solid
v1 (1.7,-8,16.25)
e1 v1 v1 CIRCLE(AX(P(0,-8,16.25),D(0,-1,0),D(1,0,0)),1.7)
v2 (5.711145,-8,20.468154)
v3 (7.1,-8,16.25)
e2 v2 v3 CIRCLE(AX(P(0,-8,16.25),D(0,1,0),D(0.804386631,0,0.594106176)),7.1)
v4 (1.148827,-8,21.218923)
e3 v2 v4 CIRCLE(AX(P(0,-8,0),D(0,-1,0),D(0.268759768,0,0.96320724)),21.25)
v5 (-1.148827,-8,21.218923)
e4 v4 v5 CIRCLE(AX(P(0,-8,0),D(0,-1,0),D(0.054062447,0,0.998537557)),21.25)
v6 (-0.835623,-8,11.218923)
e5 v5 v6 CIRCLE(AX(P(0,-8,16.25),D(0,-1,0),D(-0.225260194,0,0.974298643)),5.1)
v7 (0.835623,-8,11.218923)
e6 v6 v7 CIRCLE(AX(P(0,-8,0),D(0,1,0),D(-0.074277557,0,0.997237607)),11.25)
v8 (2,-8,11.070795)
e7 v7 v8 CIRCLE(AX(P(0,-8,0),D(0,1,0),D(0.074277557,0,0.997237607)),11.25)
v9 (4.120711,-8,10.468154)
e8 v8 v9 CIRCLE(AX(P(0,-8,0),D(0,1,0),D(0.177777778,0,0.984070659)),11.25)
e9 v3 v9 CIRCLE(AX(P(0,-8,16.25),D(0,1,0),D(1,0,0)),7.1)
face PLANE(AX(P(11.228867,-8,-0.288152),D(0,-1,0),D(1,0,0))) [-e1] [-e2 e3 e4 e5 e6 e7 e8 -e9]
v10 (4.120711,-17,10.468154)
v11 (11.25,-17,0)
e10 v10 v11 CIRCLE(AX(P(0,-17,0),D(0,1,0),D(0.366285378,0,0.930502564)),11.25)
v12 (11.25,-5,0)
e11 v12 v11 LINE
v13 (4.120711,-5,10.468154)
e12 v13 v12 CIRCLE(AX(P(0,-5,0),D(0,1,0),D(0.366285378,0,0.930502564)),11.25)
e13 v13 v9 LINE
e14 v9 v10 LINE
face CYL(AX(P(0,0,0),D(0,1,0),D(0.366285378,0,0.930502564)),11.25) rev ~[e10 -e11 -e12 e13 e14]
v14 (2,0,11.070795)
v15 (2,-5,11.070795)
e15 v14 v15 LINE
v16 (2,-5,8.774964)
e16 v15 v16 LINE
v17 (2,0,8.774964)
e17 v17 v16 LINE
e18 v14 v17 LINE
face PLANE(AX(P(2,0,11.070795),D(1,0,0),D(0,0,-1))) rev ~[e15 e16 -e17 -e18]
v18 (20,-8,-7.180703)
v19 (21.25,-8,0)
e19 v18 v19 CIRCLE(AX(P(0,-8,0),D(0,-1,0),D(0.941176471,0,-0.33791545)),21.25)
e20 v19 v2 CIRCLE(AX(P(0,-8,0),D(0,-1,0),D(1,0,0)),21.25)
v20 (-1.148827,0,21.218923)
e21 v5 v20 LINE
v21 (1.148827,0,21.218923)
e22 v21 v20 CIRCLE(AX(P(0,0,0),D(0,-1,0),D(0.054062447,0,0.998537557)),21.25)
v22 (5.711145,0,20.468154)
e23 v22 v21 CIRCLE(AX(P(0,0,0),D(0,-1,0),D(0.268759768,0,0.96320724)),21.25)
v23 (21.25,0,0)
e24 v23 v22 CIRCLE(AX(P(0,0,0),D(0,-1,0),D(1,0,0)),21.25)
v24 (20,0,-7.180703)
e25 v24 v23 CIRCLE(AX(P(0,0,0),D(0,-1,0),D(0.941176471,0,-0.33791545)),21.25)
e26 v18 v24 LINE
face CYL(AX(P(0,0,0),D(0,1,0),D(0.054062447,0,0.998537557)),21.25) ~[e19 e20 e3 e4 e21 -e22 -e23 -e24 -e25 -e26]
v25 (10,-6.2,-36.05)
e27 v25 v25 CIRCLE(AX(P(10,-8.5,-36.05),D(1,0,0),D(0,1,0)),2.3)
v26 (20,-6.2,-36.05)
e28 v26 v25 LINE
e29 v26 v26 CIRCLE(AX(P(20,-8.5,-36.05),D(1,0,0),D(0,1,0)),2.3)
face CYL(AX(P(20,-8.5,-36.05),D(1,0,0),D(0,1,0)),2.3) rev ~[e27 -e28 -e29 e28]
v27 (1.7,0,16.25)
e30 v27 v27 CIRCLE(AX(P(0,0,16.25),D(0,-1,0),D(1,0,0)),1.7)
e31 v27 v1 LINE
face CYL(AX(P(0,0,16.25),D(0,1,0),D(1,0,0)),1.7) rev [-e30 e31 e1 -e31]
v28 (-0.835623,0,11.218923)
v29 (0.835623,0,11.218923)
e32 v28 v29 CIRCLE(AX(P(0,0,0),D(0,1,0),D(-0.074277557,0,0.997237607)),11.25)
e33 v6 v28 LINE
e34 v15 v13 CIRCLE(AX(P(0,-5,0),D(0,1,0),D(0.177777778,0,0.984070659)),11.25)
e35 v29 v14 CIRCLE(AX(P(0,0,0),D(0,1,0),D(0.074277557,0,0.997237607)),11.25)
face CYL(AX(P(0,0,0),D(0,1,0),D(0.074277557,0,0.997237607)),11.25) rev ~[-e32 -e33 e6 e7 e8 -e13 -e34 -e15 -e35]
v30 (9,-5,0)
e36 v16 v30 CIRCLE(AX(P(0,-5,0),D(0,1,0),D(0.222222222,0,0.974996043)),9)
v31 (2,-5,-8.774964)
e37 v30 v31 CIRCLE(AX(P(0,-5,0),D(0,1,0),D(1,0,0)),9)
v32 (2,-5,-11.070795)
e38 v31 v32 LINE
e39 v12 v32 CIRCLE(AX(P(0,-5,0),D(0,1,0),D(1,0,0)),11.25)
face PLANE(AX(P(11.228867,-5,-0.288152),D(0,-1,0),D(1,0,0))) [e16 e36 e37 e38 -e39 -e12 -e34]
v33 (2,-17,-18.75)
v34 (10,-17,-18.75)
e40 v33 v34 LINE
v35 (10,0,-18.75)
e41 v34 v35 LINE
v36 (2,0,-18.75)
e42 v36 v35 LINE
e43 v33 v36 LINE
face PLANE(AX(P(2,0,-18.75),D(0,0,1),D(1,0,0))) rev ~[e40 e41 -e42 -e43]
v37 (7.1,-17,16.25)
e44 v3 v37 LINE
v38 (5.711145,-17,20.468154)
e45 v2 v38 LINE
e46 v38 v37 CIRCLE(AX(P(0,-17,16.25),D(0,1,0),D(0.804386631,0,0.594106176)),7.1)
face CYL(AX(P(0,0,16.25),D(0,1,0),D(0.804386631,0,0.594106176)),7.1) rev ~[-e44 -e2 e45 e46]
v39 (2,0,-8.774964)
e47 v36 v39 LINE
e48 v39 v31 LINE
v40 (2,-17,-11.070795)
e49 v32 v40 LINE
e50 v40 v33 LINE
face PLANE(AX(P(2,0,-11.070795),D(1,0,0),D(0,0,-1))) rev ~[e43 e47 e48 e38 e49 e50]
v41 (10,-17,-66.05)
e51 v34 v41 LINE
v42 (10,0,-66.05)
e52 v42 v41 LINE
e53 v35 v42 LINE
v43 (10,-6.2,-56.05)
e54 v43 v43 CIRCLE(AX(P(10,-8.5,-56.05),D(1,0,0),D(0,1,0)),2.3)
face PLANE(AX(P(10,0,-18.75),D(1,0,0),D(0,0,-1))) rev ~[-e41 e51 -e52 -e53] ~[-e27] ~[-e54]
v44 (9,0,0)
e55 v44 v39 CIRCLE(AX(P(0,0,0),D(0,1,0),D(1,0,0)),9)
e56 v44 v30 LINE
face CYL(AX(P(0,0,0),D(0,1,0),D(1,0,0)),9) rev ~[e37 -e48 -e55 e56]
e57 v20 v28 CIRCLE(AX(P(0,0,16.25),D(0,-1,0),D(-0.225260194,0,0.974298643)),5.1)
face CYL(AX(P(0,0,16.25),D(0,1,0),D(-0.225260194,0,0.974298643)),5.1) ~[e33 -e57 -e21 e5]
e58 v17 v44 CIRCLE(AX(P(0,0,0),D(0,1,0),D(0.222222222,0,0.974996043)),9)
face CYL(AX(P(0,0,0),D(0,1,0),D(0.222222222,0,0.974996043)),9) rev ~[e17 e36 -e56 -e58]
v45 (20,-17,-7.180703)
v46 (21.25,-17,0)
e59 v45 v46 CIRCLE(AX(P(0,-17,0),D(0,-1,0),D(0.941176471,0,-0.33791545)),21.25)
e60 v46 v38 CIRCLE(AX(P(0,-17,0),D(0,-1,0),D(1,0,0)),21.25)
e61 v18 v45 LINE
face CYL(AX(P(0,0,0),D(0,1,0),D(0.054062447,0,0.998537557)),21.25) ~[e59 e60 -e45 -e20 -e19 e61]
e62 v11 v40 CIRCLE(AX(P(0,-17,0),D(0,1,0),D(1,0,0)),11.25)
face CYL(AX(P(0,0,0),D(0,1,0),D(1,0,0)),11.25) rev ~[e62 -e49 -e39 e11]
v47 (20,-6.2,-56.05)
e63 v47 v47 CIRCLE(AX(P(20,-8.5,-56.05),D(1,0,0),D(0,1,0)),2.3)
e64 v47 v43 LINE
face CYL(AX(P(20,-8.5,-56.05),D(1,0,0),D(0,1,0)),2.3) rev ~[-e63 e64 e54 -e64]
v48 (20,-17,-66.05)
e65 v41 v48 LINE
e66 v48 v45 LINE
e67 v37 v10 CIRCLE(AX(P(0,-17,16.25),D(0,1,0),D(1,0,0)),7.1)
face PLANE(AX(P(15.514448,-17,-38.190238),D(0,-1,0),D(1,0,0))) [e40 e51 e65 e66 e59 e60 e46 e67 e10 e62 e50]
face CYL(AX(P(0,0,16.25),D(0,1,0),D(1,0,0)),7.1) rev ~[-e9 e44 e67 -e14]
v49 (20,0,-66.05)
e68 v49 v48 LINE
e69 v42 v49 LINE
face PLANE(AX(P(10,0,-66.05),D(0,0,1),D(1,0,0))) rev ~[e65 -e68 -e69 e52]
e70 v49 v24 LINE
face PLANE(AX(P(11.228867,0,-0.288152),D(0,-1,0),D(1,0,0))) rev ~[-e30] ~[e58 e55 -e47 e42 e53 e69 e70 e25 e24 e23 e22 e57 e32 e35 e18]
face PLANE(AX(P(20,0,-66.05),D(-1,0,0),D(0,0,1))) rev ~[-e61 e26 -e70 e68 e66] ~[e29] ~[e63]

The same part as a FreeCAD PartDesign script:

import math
import FreeCAD as App
import Part
import Sketcher
from FreeCAD import Vector

doc = App.newDocument("Part")
body = doc.addObject("PartDesign::Body", "Body")

sketch1 = body.newObject("Sketcher::SketchObject", "Sketch")
sketch1.AttachmentSupport = (doc.getObject("XZ_Plane"), [""])
sketch1.MapMode = "FlatFace"
sketch1.addGeometry([
    Part.ArcOfCircle(Part.Circle(Vector(0, 0, 0), Vector(0, 0, 1), 9), math.radians(0), math.radians(77)),
    Part.ArcOfCircle(Part.Circle(Vector(0, 0, 0), Vector(0, 0, 1), 9), math.radians(-77), math.radians(0)),
    Part.LineSegment(Vector(2, -8.8, 0), Vector(2, -18.8, 0)),
    Part.LineSegment(Vector(2, -18.8, 0), Vector(10, -18.8, 0)),
    Part.LineSegment(Vector(10, -18.8, 0), Vector(10, -66, 0)),
    Part.LineSegment(Vector(10, -66, 0), Vector(20, -66, 0)),
    Part.LineSegment(Vector(20, -66, 0), Vector(20, -7.2, 0)),
    Part.ArcOfCircle(Part.Circle(Vector(0, 0, 0), Vector(0, 0, 1), 21.2), math.radians(-19.75), math.radians(0)),
    Part.ArcOfCircle(Part.Circle(Vector(0, 0, 0), Vector(0, 0, 1), 21.2), math.radians(0), math.radians(74)),
    Part.ArcOfCircle(Part.Circle(Vector(0, 0, 0), Vector(0, 0, 1), 21.3), math.radians(74.41), math.radians(86.9)),
    Part.ArcOfCircle(Part.Circle(Vector(0, 0, 0), Vector(0, 0, 1), 21.2), math.radians(86.9), math.radians(93.1)),
    Part.ArcOfCircle(Part.Circle(Vector(0, 16.2, 0), Vector(0, 0, 1), 5.1), math.radians(103), math.radians(261)),
    Part.ArcOfCircle(Part.Circle(Vector(0, 0, 0), Vector(0, 0, 1), 11.2), math.radians(85.74), math.radians(94.26)),
    Part.ArcOfCircle(Part.Circle(Vector(0, 0, 0), Vector(0, 0, 1), 11.2), math.radians(79.76), math.radians(85.74)),
    Part.LineSegment(Vector(2, 11.1, 0), Vector(2, 8.8, 0)),
    Part.Circle(Vector(0, 16.2, 0), Vector(0, 0, 1), 1.7),
], False)
sketch1.addConstraint([
    Sketcher.Constraint("Tangent", 0, 1, 1, 2),
    Sketcher.Constraint("Coincident", 1, 1, 2, 1),
    Sketcher.Constraint("Coincident", 2, 2, 3, 1),
    Sketcher.Constraint("Coincident", 3, 2, 4, 1),
    Sketcher.Constraint("Coincident", 4, 2, 5, 1),
    Sketcher.Constraint("Coincident", 5, 2, 6, 1),
    Sketcher.Constraint("Coincident", 6, 2, 7, 1),
    Sketcher.Constraint("Tangent", 7, 2, 8, 1),
    Sketcher.Constraint("Tangent", 8, 2, 9, 1),
    Sketcher.Constraint("Tangent", 9, 2, 10, 1),
    Sketcher.Constraint("Coincident", 10, 2, 11, 1),
    Sketcher.Constraint("Coincident", 11, 2, 12, 2),
    Sketcher.Constraint("Tangent", 12, 1, 13, 2),
    Sketcher.Constraint("Coincident", 13, 1, 14, 1),
    Sketcher.Constraint("Coincident", 14, 2, 0, 2),
    Sketcher.Constraint("Vertical", 2),
    Sketcher.Constraint("Horizontal", 3),
    Sketcher.Constraint("Vertical", 4),
    Sketcher.Constraint("Horizontal", 5),
    Sketcher.Constraint("Vertical", 6),
    Sketcher.Constraint("Vertical", 14),
    Sketcher.Constraint("Coincident", 0, 3, -1, 1),
    Sketcher.Constraint("Coincident", 7, 3, -1, 1),
    Sketcher.Constraint("Coincident", 9, 3, -1, 1),
    Sketcher.Constraint("Coincident", 12, 3, -1, 1),
    Sketcher.Constraint("Coincident", 15, 3, 11, 3),
    Sketcher.Constraint("Equal", 0, 1),
    Sketcher.Constraint("Equal", 9, 10),
    Sketcher.Constraint("Equal", 12, 13),
    Sketcher.Constraint("PointOnObject", 11, 3, -2),
    Sketcher.Constraint("PointOnObject", 0, 1, -1),
    Sketcher.Constraint("PointOnObject", 7, 2, -1),
    Sketcher.Constraint("Horizontal", 9, 2, 10, 2),
    Sketcher.Constraint("Horizontal", 11, 2, 12, 1),
    Sketcher.Constraint("Vertical", 2, 2, 13, 1),
    Sketcher.Constraint("Radius", 0, 9.0),
    Sketcher.Constraint("Diameter", 15, 3.4),
    Sketcher.Constraint("Radius", 11, 5.1),
    Sketcher.Constraint("DistanceX", 3, 1, 3, 2, 8.0),
    Sketcher.Constraint("DistanceX", 5, 1, 5, 2, 10.0),
    Sketcher.Constraint("Radius", 7, 21.25),
    Sketcher.Constraint("Radius", 12, 11.25),
    Sketcher.Constraint("DistanceY", 4, 2, 4, 1, 47.3),
    Sketcher.Constraint("DistanceX", -1, 1, 1, 1, 2.0),
    Sketcher.Constraint("DistanceY", 11, 2, 10, 2, 10.0),
    Sketcher.Constraint("DistanceY", 2, 2, -1, 1, 18.75),
    Sketcher.Constraint("DistanceX", 9, 2, 8, 2, 4.562318),
])
pad1 = body.newObject("PartDesign::Pad", "Pad")
pad1.Profile = sketch1
pad1.Length = 5

sketch2 = body.newObject("Sketcher::SketchObject", "Sketch001")
sketch2.AttachmentSupport = (doc.getObject("XZ_Plane"), [""])
sketch2.MapMode = "FlatFace"
sketch2.addGeometry([
    Part.ArcOfCircle(Part.Circle(Vector(0, 0, 0), Vector(0, 0, 1), 11.2), math.radians(0), math.radians(69)),
    Part.ArcOfCircle(Part.Circle(Vector(0, 0, 0), Vector(0, 0, 1), 11.2), math.radians(-80), math.radians(0)),
    Part.LineSegment(Vector(2, -11.1, 0), Vector(2, -18.8, 0)),
    Part.LineSegment(Vector(2, -18.8, 0), Vector(10, -18.8, 0)),
    Part.LineSegment(Vector(10, -18.8, 0), Vector(10, -66, 0)),
    Part.LineSegment(Vector(10, -66, 0), Vector(20, -66, 0)),
    Part.LineSegment(Vector(20, -66, 0), Vector(20, -7.2, 0)),
    Part.ArcOfCircle(Part.Circle(Vector(0, 0, 0), Vector(0, 0, 1), 21.2), math.radians(-19.75), math.radians(0)),
    Part.ArcOfCircle(Part.Circle(Vector(0, 0, 0), Vector(0, 0, 1), 21.2), math.radians(0), math.radians(74)),
    Part.ArcOfCircle(Part.Circle(Vector(0, 0, 0), Vector(0, 0, 1), 21.3), math.radians(74.41), math.radians(86.9)),
    Part.ArcOfCircle(Part.Circle(Vector(0, 0, 0), Vector(0, 0, 1), 21.2), math.radians(86.9), math.radians(93.1)),
    Part.ArcOfCircle(Part.Circle(Vector(0, 16.2, 0), Vector(0, 0, 1), 5.1), math.radians(103), math.radians(261)),
    Part.ArcOfCircle(Part.Circle(Vector(0, 0, 0), Vector(0, 0, 1), 11.2), math.radians(85.74), math.radians(94.26)),
    Part.ArcOfCircle(Part.Circle(Vector(0, 0, 0), Vector(0, 0, 1), 11.2), math.radians(79.76), math.radians(85.74)),
    Part.ArcOfCircle(Part.Circle(Vector(0, 0, 0), Vector(0, 0, 1), 11.2), math.radians(68.51), math.radians(79.76)),
    Part.Circle(Vector(0, 16.2, 0), Vector(0, 0, 1), 1.7),
], False)
sketch2.addConstraint([
    Sketcher.Constraint("Tangent", 0, 1, 1, 2),
    Sketcher.Constraint("Coincident", 1, 1, 2, 1),
    Sketcher.Constraint("Coincident", 2, 2, 3, 1),
    Sketcher.Constraint("Coincident", 3, 2, 4, 1),
    Sketcher.Constraint("Coincident", 4, 2, 5, 1),
    Sketcher.Constraint("Coincident", 5, 2, 6, 1),
    Sketcher.Constraint("Coincident", 6, 2, 7, 1),
    Sketcher.Constraint("Tangent", 7, 2, 8, 1),
    Sketcher.Constraint("Tangent", 8, 2, 9, 1),
    Sketcher.Constraint("Tangent", 9, 2, 10, 1),
    Sketcher.Constraint("Coincident", 10, 2, 11, 1),
    Sketcher.Constraint("Coincident", 11, 2, 12, 2),
    Sketcher.Constraint("Tangent", 12, 1, 13, 2),
    Sketcher.Constraint("Tangent", 13, 1, 14, 2),
    Sketcher.Constraint("Tangent", 14, 1, 0, 2),
    Sketcher.Constraint("Vertical", 2),
    Sketcher.Constraint("Horizontal", 3),
    Sketcher.Constraint("Vertical", 4),
    Sketcher.Constraint("Horizontal", 5),
    Sketcher.Constraint("Vertical", 6),
    Sketcher.Constraint("Coincident", 0, 3, -1, 1),
    Sketcher.Constraint("Coincident", 7, 3, -1, 1),
    Sketcher.Constraint("Coincident", 9, 3, -1, 1),
    Sketcher.Constraint("Coincident", 12, 3, -1, 1),
    Sketcher.Constraint("Coincident", 15, 3, 11, 3),
    Sketcher.Constraint("Equal", 0, 1),
    Sketcher.Constraint("Equal", 9, 10),
    Sketcher.Constraint("Equal", 1, 12),
    Sketcher.Constraint("PointOnObject", 11, 3, -2),
    Sketcher.Constraint("PointOnObject", 0, 1, -1),
    Sketcher.Constraint("PointOnObject", 7, 2, -1),
    Sketcher.Constraint("Horizontal", 9, 2, 10, 2),
    Sketcher.Constraint("Horizontal", 11, 2, 12, 1),
    Sketcher.Constraint("Vertical", 2, 2, 13, 1),
    Sketcher.Constraint("Diameter", 15, 3.4),
    Sketcher.Constraint("Radius", 11, 5.1),
    Sketcher.Constraint("DistanceX", 3, 1, 3, 2, 8.0),
    Sketcher.Constraint("DistanceX", 5, 1, 5, 2, 10.0),
    Sketcher.Constraint("Radius", 0, 11.25),
    Sketcher.Constraint("Radius", 7, 21.25),
    Sketcher.Constraint("DistanceY", 4, 2, 4, 1, 47.3),
    Sketcher.Constraint("DistanceX", -1, 1, 1, 1, 2.0),
    Sketcher.Constraint("DistanceY", 11, 2, 10, 2, 10.0),
    Sketcher.Constraint("DistanceY", 2, 2, -1, 1, 18.75),
    Sketcher.Constraint("DistanceX", -1, 1, 14, 1, 4.120711),
    Sketcher.Constraint("DistanceX", 9, 2, 8, 2, 4.562318),
])
pad2 = body.newObject("PartDesign::Pad", "Pad001")
pad2.Profile = sketch2
pad2.Length = 8

sketch3 = body.newObject("Sketcher::SketchObject", "Sketch002")
sketch3.AttachmentSupport = (doc.getObject("XZ_Plane"), [""])
sketch3.MapMode = "FlatFace"
sketch3.addGeometry([
    Part.LineSegment(Vector(10, -18.8, 0), Vector(10, -66, 0)),
    Part.LineSegment(Vector(10, -66, 0), Vector(20, -66, 0)),
    Part.LineSegment(Vector(20, -66, 0), Vector(20, -7.2, 0)),
    Part.ArcOfCircle(Part.Circle(Vector(0, 0, 0), Vector(0, 0, 1), 21.2), math.radians(-19.75), math.radians(0)),
    Part.ArcOfCircle(Part.Circle(Vector(0, 0, 0), Vector(0, 0, 1), 21.2), math.radians(0), math.radians(74)),
    Part.ArcOfCircle(Part.Circle(Vector(0, 16.2, 0), Vector(0, 0, 1), 7.1), math.radians(0), math.radians(36)),
    Part.ArcOfCircle(Part.Circle(Vector(0, 16.2, 0), Vector(0, 0, 1), 7.1), math.radians(-55), math.radians(0)),
    Part.ArcOfCircle(Part.Circle(Vector(0, 0, 0), Vector(0, 0, 1), 11.2), math.radians(0), math.radians(69)),
    Part.ArcOfCircle(Part.Circle(Vector(0, 0, 0), Vector(0, 0, 1), 11.2), math.radians(-80), math.radians(0)),
    Part.LineSegment(Vector(2, -11.1, 0), Vector(2, -18.8, 0)),
    Part.LineSegment(Vector(2, -18.8, 0), Vector(10, -18.8, 0)),
], False)
sketch3.addConstraint([
    Sketcher.Constraint("Coincident", 0, 2, 1, 1),
    Sketcher.Constraint("Coincident", 1, 2, 2, 1),
    Sketcher.Constraint("Coincident", 2, 2, 3, 1),
    Sketcher.Constraint("Tangent", 3, 2, 4, 1),
    Sketcher.Constraint("Coincident", 4, 2, 5, 2),
    Sketcher.Constraint("Tangent", 5, 1, 6, 2),
    Sketcher.Constraint("Coincident", 6, 1, 7, 2),
    Sketcher.Constraint("Tangent", 7, 1, 8, 2),
    Sketcher.Constraint("Coincident", 8, 1, 9, 1),
    Sketcher.Constraint("Coincident", 9, 2, 10, 1),
    Sketcher.Constraint("Coincident", 10, 2, 0, 1),
    Sketcher.Constraint("Vertical", 0),
    Sketcher.Constraint("Horizontal", 1),
    Sketcher.Constraint("Vertical", 2),
    Sketcher.Constraint("Vertical", 9),
    Sketcher.Constraint("Horizontal", 10),
    Sketcher.Constraint("Coincident", 3, 3, -1, 1),
    Sketcher.Constraint("Coincident", 7, 3, -1, 1),
    Sketcher.Constraint("Equal", 3, 4),
    Sketcher.Constraint("Equal", 5, 6),
    Sketcher.Constraint("Equal", 7, 8),
    Sketcher.Constraint("PointOnObject", 5, 3, -2),
    Sketcher.Constraint("PointOnObject", 3, 2, -1),
    Sketcher.Constraint("PointOnObject", 7, 1, -1),
    Sketcher.Constraint("Horizontal", 6, 3, 5, 1),
    Sketcher.Constraint("Radius", 5, 7.1),
    Sketcher.Constraint("DistanceX", 1, 1, 1, 2, 10.0),
    Sketcher.Constraint("DistanceX", 10, 1, 10, 2, 8.0),
    Sketcher.Constraint("Radius", 3, 21.25),
    Sketcher.Constraint("Radius", 7, 11.25),
    Sketcher.Constraint("DistanceY", 0, 2, 0, 1, 47.3),
    Sketcher.Constraint("DistanceX", -1, 1, 0, 2, 10.0),
    Sketcher.Constraint("DistanceY", 6, 1, 4, 2, 10.0),
    Sketcher.Constraint("DistanceY", 0, 2, 5, 3, 82.3),
])
pad3 = body.newObject("PartDesign::Pad", "Pad002")
pad3.Profile = sketch3
pad3.Length = 17

sketch4 = body.newObject("Sketcher::SketchObject", "Sketch003")
sketch4.AttachmentSupport = (doc.getObject("YZ_Plane"), [""])
sketch4.MapMode = "FlatFace"
sketch4.AttachmentOffset = App.Placement(Vector(0, 0, 20), App.Rotation())
sketch4.addGeometry([
    Part.Circle(Vector(-8.5, -56, 0), Vector(0, 0, 1), 2.3),
    Part.Circle(Vector(-8.5, -36, 0), Vector(0, 0, 1), 2.3),
], False)
sketch4.addConstraint([
    Sketcher.Constraint("Equal", 0, 1),
    Sketcher.Constraint("Vertical", 0, 3, 1, 3),
    Sketcher.Constraint("Diameter", 0, 4.6),
    Sketcher.Constraint("DistanceY", 0, 3, 1, 3, 20.0),
    Sketcher.Constraint("DistanceX", 0, 3, -1, 1, 8.5),
    Sketcher.Constraint("DistanceY", 0, 3, -1, 1, 56.05),
])
pocket1 = body.newObject("PartDesign::Pocket", "Pocket")
pocket1.Profile = sketch4
pocket1.Length = 25

doc.recompute()
